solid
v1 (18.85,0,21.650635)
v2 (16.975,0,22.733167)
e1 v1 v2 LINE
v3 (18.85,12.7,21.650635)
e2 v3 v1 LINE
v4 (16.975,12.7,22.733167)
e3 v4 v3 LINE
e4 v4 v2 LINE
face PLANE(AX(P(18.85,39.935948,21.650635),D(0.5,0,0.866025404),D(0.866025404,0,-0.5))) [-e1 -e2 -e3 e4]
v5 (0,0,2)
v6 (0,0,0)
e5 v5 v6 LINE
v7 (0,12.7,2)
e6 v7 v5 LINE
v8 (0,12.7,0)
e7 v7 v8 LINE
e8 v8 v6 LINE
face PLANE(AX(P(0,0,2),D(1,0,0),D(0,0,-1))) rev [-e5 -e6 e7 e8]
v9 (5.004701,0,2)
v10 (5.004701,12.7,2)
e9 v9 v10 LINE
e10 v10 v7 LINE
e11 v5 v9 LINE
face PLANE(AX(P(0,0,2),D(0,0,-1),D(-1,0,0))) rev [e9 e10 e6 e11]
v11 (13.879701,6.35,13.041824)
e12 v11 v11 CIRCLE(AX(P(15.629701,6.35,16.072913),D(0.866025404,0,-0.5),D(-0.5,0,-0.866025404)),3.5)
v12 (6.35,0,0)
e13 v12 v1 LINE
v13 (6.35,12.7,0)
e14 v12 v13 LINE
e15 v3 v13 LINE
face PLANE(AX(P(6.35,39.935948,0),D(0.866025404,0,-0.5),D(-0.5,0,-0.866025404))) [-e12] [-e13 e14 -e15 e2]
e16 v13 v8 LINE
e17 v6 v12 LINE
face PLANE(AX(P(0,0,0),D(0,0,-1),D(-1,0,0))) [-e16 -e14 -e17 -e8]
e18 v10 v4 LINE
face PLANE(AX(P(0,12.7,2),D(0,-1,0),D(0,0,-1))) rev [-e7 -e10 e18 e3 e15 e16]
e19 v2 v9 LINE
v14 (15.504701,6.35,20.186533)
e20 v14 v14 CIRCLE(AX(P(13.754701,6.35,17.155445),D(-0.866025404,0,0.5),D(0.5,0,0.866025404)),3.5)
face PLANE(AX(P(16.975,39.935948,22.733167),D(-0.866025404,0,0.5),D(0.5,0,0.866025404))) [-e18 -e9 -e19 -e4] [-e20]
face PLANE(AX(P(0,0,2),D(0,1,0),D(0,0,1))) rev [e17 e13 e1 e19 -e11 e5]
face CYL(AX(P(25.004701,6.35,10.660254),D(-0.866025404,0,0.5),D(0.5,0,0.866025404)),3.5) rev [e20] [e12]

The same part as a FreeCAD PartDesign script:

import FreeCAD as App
import Part
import Sketcher
Q = App.Units.Quantity


def add_polygon(sketch, points):
    """Adds a closed chain of lines whose ends are joined by coincident constraints."""
    first, n = sketch.GeometryCount, len(points)
    for a, b in zip(points, points[1:] + points[:1]):
        sketch.addGeometry(Part.LineSegment(App.Vector(*a, 0), App.Vector(*b, 0)), False)
    for i in range(n):
        sketch.addConstraint(Sketcher.Constraint("Coincident", first + i, 2, first + (i + 1) % n, 1))

doc = App.newDocument("Part")
body = doc.addObject("PartDesign::Body", "Body")

# Sketch on XY plane
sketch1 = doc.addObject("Sketcher::SketchObject", "Sketch")
body.addObject(sketch1)
sketch1.AttachmentSupport = (doc.XY_Plane, [""])
sketch1.MapMode = "FlatFace"
add_polygon(sketch1, [(0, 12.7), (0, 0), (6.35, 0), (6.35, 12.7)])  # lines 0-3
sketch1.addConstraint([
    Sketcher.Constraint("Vertical", 0),
    Sketcher.Constraint("Horizontal", 1),
    Sketcher.Constraint("Vertical", 2),
    Sketcher.Constraint("Horizontal", 3),
    Sketcher.Constraint("Coincident", 0, 2, -1, 1),
    Sketcher.Constraint("DistanceY", 0, 2, 0, 1, 12.7),
    Sketcher.Constraint("DistanceX", 1, 1, 1, 2, 6.35),
])
pad1 = doc.addObject("PartDesign::Pad", "Pad")
body.addObject(pad1)
pad1.Profile = sketch1
pad1.Length = 2

# Sketch on XZ plane
sketch2 = doc.addObject("Sketcher::SketchObject", "Sketch001")
body.addObject(sketch2)
sketch2.AttachmentSupport = (doc.XZ_Plane, [""])
sketch2.MapMode = "FlatFace"
add_polygon(sketch2, [(6.35, 0), (18.85, 21.650635), (16.975, 22.733167), (3.85, 0)])  # lines 0-3
sketch2.addConstraint([
    Sketcher.Constraint("Horizontal", 3),
    Sketcher.Constraint("PointOnObject", 2, 2, -1),
    Sketcher.Constraint("Perpendicular", 0, 1),
    Sketcher.Constraint("Perpendicular", 1, 2),
    Sketcher.Constraint("Angle", 0, Q("60 deg")),
    Sketcher.Constraint("Distance", 0, 25.0),
    Sketcher.Constraint("DistanceX", 3, 1, 3, 2, 2.5),
    Sketcher.Constraint("DistanceX", -1, 1, 0, 2, 18.85),
])
pad2 = doc.addObject("PartDesign::Pad", "Pad001")
body.addObject(pad2)
pad2.Profile = sketch2
pad2.Length = 12.7
pad2.Reversed = True

# Sketch on an angled plane
sketch3 = doc.addObject("Sketcher::SketchObject", "Sketch002")
body.addObject(sketch3)
sketch3.Placement = App.Placement(App.Vector(2.8875, 0, -1.667099), App.Rotation(App.Vector(0.5, 0, 0.866025404), App.Vector(0, 1, 0), App.Vector(-0.866025404, 0, 0.5), "ZXY"))
sketch3.addGeometry(Part.Circle(App.Vector(21.734401, 6.35, 0), App.Vector(0, 0, 1), 3.5), False)
sketch3.addConstraint([
    Sketcher.Constraint("Diameter", 0, 7.0),
    Sketcher.Constraint("DistanceY", -1, 1, 0, 3, 6.35),
    Sketcher.Constraint("DistanceX", -1, 1, 0, 3, 21.734401),
])
pocket1 = doc.addObject("PartDesign::Pocket", "Pocket")
body.addObject(pocket1)
pocket1.Profile = sketch3
pocket1.Type = "ThroughAll"

doc.recompute()
